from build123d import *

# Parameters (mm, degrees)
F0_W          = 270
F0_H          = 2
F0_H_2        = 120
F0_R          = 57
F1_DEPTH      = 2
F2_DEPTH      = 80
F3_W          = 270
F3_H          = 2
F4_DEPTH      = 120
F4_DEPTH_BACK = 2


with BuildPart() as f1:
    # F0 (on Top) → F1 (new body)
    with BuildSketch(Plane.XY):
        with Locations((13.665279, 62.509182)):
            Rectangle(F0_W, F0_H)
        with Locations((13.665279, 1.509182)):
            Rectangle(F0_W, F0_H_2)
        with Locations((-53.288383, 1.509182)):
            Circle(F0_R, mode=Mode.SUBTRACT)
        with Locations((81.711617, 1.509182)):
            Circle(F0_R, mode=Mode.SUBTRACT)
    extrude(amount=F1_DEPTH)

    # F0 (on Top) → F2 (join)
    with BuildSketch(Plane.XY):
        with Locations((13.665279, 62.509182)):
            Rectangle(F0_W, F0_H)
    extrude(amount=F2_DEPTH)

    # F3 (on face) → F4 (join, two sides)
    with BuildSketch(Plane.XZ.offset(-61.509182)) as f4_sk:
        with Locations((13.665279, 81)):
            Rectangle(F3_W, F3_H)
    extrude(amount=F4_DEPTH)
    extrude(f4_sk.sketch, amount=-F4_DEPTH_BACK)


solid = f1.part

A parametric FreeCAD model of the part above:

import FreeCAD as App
import Part
import Sketcher
from FreeCAD import Vector


def add_polygon(sketch, points):
    """Adds a closed chain of lines whose ends are joined by coincident constraints."""
    first, n = sketch.GeometryCount, len(points)
    for a, b in zip(points, points[1:] + points[:1]):
        sketch.addGeometry(Part.LineSegment(App.Vector(*a, 0), App.Vector(*b, 0)), False)
    for i in range(n):
        sketch.addConstraint(Sketcher.Constraint("Coincident", first + i, 2, first + (i + 1) % n, 1))

doc = App.newDocument("Part")
body = doc.addObject("PartDesign::Body", "Body")

# Sketch on XY plane
sketch1 = body.newObject("Sketcher::SketchObject", "Sketch")
sketch1.AttachmentSupport = (doc.getObject("XY_Plane"), [""])
sketch1.MapMode = "FlatFace"
add_polygon(sketch1, [(-121, 64), (-121, -58), (149, -58), (149, 64)])  # lines 0-3
sketch1.addGeometry(Part.Circle(Vector(-53, 2, 0), Vector(0, 0, 1), 57), False)  # 4
sketch1.addGeometry(Part.Circle(Vector(82, 2, 0), Vector(0, 0, 1), 57), False)  # 5
sketch1.addConstraint(Sketcher.Constraint("Vertical", 0))
sketch1.addConstraint(Sketcher.Constraint("Horizontal", 1))
sketch1.addConstraint(Sketcher.Constraint("Vertical", 2))
sketch1.addConstraint(Sketcher.Constraint("Horizontal", 3))
sketch1.addConstraint(Sketcher.Constraint("Equal", 4, 5))
sketch1.addConstraint(Sketcher.Constraint("Horizontal", 4, 3, 5, 3))
sketch1.addConstraint(Sketcher.Constraint("Diameter", 4, 114.0))
sketch1.addConstraint(Sketcher.Constraint("DistanceX", 1, 1, 1, 2, 270.0))
sketch1.addConstraint(Sketcher.Constraint("DistanceY", 0, 2, 0, 1, 122.0))
sketch1.addConstraint(Sketcher.Constraint("DistanceX", 4, 3, 5, 3, 135.0))
sketch1.addConstraint(Sketcher.Constraint("DistanceY", 0, 2, 4, 3, 60.0))
sketch1.addConstraint(Sketcher.Constraint("DistanceX", 0, 2, -1, 1, 121.334721))
sketch1.addConstraint(Sketcher.Constraint("DistanceX", 0, 2, 5, 3, 203.046338))
sketch1.addConstraint(Sketcher.Constraint("DistanceY", -1, 1, 4, 3, 1.509182))
pad1 = body.newObject("PartDesign::Pad", "Pad")
pad1.Profile = sketch1
pad1.Length = 2

# Sketch on XY plane
sketch2 = body.newObject("Sketcher::SketchObject", "Sketch001")
sketch2.AttachmentSupport = (doc.getObject("XY_Plane"), [""])
sketch2.MapMode = "FlatFace"
add_polygon(sketch2, [(-121.3, 63.5), (-121.3, 61.5), (148.7, 61.5), (148.7, 63.5)])  # lines 0-3
sketch2.addConstraint(Sketcher.Constraint("Vertical", 0))
sketch2.addConstraint(Sketcher.Constraint("Horizontal", 1))
sketch2.addConstraint(Sketcher.Constraint("Vertical", 2))
sketch2.addConstraint(Sketcher.Constraint("Horizontal", 3))
sketch2.addConstraint(Sketcher.Constraint("DistanceX", 1, 1, 1, 2, 270.0))
sketch2.addConstraint(Sketcher.Constraint("DistanceY", 0, 2, 0, 1, 2.0))
sketch2.addConstraint(Sketcher.Constraint("DistanceX", 0, 2, -1, 1, 121.334721))
sketch2.addConstraint(Sketcher.Constraint("DistanceY", -1, 1, 0, 2, 61.509182))
pad2 = body.newObject("PartDesign::Pad", "Pad001")
pad2.Profile = sketch2
pad2.Length = 80

# Sketch on XZ plane
sketch3 = body.newObject("Sketcher::SketchObject", "Sketch002")
sketch3.AttachmentSupport = (doc.getObject("XZ_Plane"), [""])
sketch3.MapMode = "FlatFace"
sketch3.AttachmentOffset = App.Placement(Vector(0, 0, -61.509182), App.Rotation())
add_polygon(sketch3, [(-121.3, 82), (-121.3, 80), (148.7, 80), (148.7, 82)])  # lines 0-3
sketch3.addConstraint(Sketcher.Constraint("Vertical", 0))
sketch3.addConstraint(Sketcher.Constraint("Horizontal", 1))
sketch3.addConstraint(Sketcher.Constraint("Vertical", 2))
sketch3.addConstraint(Sketcher.Constraint("Horizontal", 3))
sketch3.addConstraint(Sketcher.Constraint("DistanceX", 1, 1, 1, 2, 270.0))
sketch3.addConstraint(Sketcher.Constraint("DistanceY", 0, 2, 0, 1, 2.0))
sketch3.addConstraint(Sketcher.Constraint("DistanceY", -1, 1, 0, 2, 80.0))
sketch3.addConstraint(Sketcher.Constraint("DistanceX", 0, 2, -1, 1, 121.334721))
pad3 = body.newObject("PartDesign::Pad", "Pad002")
pad3.Profile = sketch3
pad3.Type = "TwoLengths"
pad3.Length = 120
pad3.Length2 = 2

doc.recompute()
